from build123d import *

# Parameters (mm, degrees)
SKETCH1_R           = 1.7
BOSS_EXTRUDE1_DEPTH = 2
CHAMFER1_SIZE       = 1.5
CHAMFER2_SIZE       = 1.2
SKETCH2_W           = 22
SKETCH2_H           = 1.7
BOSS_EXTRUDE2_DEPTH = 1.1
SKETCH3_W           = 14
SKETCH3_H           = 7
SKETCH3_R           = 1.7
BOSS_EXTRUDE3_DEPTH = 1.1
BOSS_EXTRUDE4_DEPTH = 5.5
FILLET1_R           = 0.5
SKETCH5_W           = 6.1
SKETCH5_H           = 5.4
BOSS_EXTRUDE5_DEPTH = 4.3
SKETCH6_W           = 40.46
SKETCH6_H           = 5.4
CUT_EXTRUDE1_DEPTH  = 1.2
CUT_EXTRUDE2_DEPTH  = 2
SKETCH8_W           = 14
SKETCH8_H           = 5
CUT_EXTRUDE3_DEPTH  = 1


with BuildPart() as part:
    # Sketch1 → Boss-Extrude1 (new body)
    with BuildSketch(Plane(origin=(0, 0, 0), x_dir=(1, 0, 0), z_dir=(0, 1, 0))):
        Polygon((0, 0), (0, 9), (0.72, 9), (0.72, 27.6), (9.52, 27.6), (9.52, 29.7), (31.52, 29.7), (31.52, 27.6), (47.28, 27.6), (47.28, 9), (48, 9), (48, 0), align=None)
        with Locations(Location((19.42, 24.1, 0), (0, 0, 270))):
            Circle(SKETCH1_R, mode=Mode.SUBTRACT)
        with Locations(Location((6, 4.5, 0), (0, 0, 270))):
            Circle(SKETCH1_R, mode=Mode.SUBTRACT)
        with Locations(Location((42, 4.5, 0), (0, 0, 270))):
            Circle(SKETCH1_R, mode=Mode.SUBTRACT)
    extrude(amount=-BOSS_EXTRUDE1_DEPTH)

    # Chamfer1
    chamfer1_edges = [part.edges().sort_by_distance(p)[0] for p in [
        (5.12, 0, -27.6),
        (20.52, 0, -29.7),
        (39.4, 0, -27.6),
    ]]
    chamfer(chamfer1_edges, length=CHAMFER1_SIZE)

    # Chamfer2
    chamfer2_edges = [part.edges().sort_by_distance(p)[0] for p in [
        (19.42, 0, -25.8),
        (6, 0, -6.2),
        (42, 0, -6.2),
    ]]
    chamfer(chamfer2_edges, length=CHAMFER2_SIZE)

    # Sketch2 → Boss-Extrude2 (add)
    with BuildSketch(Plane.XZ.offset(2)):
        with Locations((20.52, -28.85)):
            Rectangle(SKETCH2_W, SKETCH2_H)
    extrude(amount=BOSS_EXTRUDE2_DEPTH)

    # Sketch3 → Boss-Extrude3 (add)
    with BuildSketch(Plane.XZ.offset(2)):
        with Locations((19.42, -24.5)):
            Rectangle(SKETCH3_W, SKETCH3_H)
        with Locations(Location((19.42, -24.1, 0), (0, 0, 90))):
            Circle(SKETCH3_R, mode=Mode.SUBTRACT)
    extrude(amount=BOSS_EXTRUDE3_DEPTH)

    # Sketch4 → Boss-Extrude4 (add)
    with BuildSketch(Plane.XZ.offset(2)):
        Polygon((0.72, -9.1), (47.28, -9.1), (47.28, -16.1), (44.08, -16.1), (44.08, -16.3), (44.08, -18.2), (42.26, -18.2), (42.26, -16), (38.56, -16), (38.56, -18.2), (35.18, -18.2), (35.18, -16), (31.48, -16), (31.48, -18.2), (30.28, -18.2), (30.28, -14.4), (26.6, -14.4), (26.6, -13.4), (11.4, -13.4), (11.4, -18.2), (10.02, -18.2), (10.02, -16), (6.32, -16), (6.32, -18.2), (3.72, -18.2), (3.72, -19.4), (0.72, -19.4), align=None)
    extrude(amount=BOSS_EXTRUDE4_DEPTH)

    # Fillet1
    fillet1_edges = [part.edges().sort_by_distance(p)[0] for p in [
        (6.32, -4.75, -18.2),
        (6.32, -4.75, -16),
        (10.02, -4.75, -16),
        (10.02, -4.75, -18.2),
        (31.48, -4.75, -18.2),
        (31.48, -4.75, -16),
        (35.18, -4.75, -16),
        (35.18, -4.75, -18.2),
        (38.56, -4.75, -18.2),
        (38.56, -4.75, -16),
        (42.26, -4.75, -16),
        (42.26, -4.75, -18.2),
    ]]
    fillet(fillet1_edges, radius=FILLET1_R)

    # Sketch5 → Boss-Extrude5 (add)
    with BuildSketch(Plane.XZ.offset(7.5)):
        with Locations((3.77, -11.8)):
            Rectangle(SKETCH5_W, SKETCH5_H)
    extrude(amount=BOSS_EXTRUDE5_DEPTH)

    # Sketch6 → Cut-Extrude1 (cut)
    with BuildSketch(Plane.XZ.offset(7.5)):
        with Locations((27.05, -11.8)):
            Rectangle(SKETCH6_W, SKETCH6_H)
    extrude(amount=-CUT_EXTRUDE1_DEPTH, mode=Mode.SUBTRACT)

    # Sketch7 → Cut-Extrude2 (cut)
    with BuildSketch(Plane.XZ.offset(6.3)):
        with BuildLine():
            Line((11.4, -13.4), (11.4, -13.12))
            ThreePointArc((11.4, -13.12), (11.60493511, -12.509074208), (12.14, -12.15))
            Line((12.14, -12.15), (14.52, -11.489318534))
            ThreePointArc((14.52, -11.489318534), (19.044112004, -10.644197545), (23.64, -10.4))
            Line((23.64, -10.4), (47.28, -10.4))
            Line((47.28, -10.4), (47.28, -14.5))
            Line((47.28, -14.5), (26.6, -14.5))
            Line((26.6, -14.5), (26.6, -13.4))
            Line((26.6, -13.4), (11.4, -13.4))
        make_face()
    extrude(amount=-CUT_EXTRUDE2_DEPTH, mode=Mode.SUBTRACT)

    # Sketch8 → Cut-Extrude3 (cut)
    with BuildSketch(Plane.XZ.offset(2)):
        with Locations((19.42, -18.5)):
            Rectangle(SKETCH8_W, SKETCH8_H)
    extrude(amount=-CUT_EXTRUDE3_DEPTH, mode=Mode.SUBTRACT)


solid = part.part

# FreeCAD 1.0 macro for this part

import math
import FreeCAD as App
import Part
import Sketcher
from FreeCAD import Vector


def edges_at(feature, points):
    """Names of the edges that pass closest to the given points."""
    edges = feature.Shape.Edges
    near = lambda p: min(range(len(edges)), key=lambda i: edges[i].distToShape(Part.Vertex(*p))[0])
    return sorted({f"Edge{near(p) + 1}" for p in points})


def add_polygon(sketch, points):
    """Adds a closed chain of lines whose ends are joined by coincident constraints."""
    first, n = sketch.GeometryCount, len(points)
    for a, b in zip(points, points[1:] + points[:1]):
        sketch.addGeometry(Part.LineSegment(App.Vector(*a, 0), App.Vector(*b, 0)), False)
    for i in range(n):
        sketch.addConstraint(Sketcher.Constraint("Coincident", first + i, 2, first + (i + 1) % n, 1))

doc = App.newDocument("Part")
params = doc.addObject("Spreadsheet::Sheet", "Params")
for row, (alias, value) in enumerate([
    ("sketch1_diameter", "3.4 mm"),
    ("sketch1_width", "48 mm"),
    ("sketch1_width2", "22 mm"),
    ("sketch1_height", "9 mm"),
    ("sketch1_width3", "8.8 mm"),
    ("pad1_length", "2 mm"),
    ("chamfer_size", "1.5 mm"),
    ("chamfer2_size", "1.2 mm"),
    ("sketch2_width", "22 mm"),
    ("sketch2_height", "1.7 mm"),
    ("pad2_length", "1.1 mm"),
    ("sketch3_diameter", "3.4 mm"),
    ("sketch3_width", "14 mm"),
    ("sketch3_height", "7 mm"),
    ("pad3_length", "1.1 mm"),
    ("sketch4_width", "3 mm"),
    ("sketch4_height", "1 mm"),
    ("sketch4_height2", "7 mm"),
    ("sketch4_width2", "2.6 mm"),
    ("sketch4_width3", "3.7 mm"),
    ("pad4_length", "5.5 mm"),
    ("fillet_radius", "0.5 mm"),
    ("sketch5_width", "6.1 mm"),
    ("sketch5_height", "5.4 mm"),
    ("pad5_length", "4.3 mm"),
    ("sketch6_height", "5.4 mm"),
    ("sketch6_width", "40.46 mm"),
    ("pocket1_length", "1.2 mm"),
    ("sketch7_radius", "35 mm"),
    ("sketch7_radius2", "1 mm"),
    ("sketch7_width", "15.2 mm"),
    ("sketch7_height", "1.1 mm"),
    ("sketch7_height2", "4.1 mm"),
    ("pocket2_length", "2 mm"),
    ("sketch8_width", "14 mm"),
    ("sketch8_height", "5 mm"),
    ("pocket3_length", "1 mm"),
], start=1):
    params.set(f"A{row}", alias)
    params.set(f"B{row}", "=" + value)
    params.setAlias(f"B{row}", alias)

body = doc.addObject("PartDesign::Body", "Body")

sketch1 = body.newObject("Sketcher::SketchObject", "Sketch")
sketch1.AttachmentSupport = (doc.getObject("XZ_Plane"), [""])
sketch1.MapMode = "FlatFace"
add_polygon(sketch1, [(0, -9), (0, 0), (48, 0), (48, -9), (47.3, -9), (47.3, -27.6), (31.5, -27.6), (31.5, -29.7), (9.5, -29.7), (9.5, -27.6), (0.7, -27.6), (0.7, -9)])
sketch1.addGeometry(Part.Circle(Vector(42, -4.5, 0), Vector(0, 0, 1), 1.7), False)
sketch1.addGeometry(Part.Circle(Vector(6, -4.5, 0), Vector(0, 0, 1), 1.7), False)
sketch1.addGeometry(Part.Circle(Vector(19.4, -24.1, 0), Vector(0, 0, 1), 1.7), False)
sketch1.addConstraint(Sketcher.Constraint("Vertical", 0))
sketch1.addConstraint(Sketcher.Constraint("Horizontal", 1))
sketch1.addConstraint(Sketcher.Constraint("Vertical", 2))
sketch1.addConstraint(Sketcher.Constraint("Horizontal", 3))
sketch1.addConstraint(Sketcher.Constraint("Vertical", 4))
sketch1.addConstraint(Sketcher.Constraint("Horizontal", 5))
sketch1.addConstraint(Sketcher.Constraint("Vertical", 6))
sketch1.addConstraint(Sketcher.Constraint("Horizontal", 7))
sketch1.addConstraint(Sketcher.Constraint("Vertical", 8))
sketch1.addConstraint(Sketcher.Constraint("Horizontal", 9))
sketch1.addConstraint(Sketcher.Constraint("Vertical", 10))
sketch1.addConstraint(Sketcher.Constraint("Horizontal", 11))
sketch1.addConstraint(Sketcher.Constraint("Coincident", 0, 2, -1, 1))
sketch1.addConstraint(Sketcher.Constraint("Equal", 12, 13))
sketch1.addConstraint(Sketcher.Constraint("Equal", 13, 14))
sketch1.addConstraint(Sketcher.Constraint("Horizontal", 12, 3, 13, 3))
sketch1.addConstraint(Sketcher.Constraint("Horizontal", 5, 2, 8, 2))
sketch1.addConstraint(Sketcher.Constraint("Horizontal", 3, 2, 10, 2))
sketch1.addConstraint(Sketcher.Constraint("Equal", 3, 11))
sketch1.addConstraint(Sketcher.Constraint("Diameter", 12, 3.4))
sketch1.addConstraint(Sketcher.Constraint("DistanceX", 1, 1, 1, 2, 48.0))
sketch1.addConstraint(Sketcher.Constraint("DistanceX", 7, 2, 7, 1, 22.0))
sketch1.addConstraint(Sketcher.Constraint("DistanceY", 0, 1, 0, 2, 9.0))
sketch1.addConstraint(Sketcher.Constraint("DistanceX", 9, 2, 9, 1, 8.8))
sketch1.addConstraint(Sketcher.Constraint("DistanceY", 4, 2, 4, 1, 18.6))
sketch1.addConstraint(Sketcher.Constraint("DistanceY", 6, 2, 6, 1, 2.1))
sketch1.addConstraint(Sketcher.Constraint("DistanceX", -1, 1, 12, 3, 42.0))
sketch1.addConstraint(Sketcher.Constraint("DistanceX", -1, 1, 13, 3, 6.0))
sketch1.addConstraint(Sketcher.Constraint("DistanceX", 3, 2, 3, 1, 0.72))
sketch1.addConstraint(Sketcher.Constraint("DistanceY", 12, 3, -1, 1, 4.5))
sketch1.addConstraint(Sketcher.Constraint("DistanceY", 14, 3, -1, 1, 24.1))
sketch1.addConstraint(Sketcher.Constraint("DistanceX", 14, 3, 5, 2, 12.1))
sketch1.setExpression("Constraints[31]", "Params.sketch1_diameter")
sketch1.setExpression("Constraints[32]", "Params.sketch1_width")
sketch1.setExpression("Constraints[33]", "Params.sketch1_width2")
sketch1.setExpression("Constraints[34]", "Params.sketch1_height")
sketch1.setExpression("Constraints[35]", "Params.sketch1_width3")
pad1 = body.newObject("PartDesign::Pad", "Pad")
pad1.Profile = sketch1
pad1.setExpression("Length", "Params.pad1_length")
doc.recompute()

chamfer = body.newObject("PartDesign::Chamfer", "Chamfer")
chamfer.Base = (pad1, edges_at(pad1, [(5.12, 0, -27.6), (20.52, 0, -29.7), (39.4, 0, -27.6)]))
chamfer.setExpression("Size", "Params.chamfer_size")
doc.recompute()

chamfer2 = body.newObject("PartDesign::Chamfer", "Chamfer001")
chamfer2.Base = (chamfer, edges_at(chamfer, [(19.42, 0, -25.8), (6, 0, -6.2), (42, 0, -6.2)]))
chamfer2.setExpression("Size", "Params.chamfer2_size")

sketch2 = body.newObject("Sketcher::SketchObject", "Sketch001")
sketch2.AttachmentSupport = (doc.getObject("XZ_Plane"), [""])
sketch2.MapMode = "FlatFace"
sketch2.AttachmentOffset = App.Placement(Vector(0, 0, 2), App.Rotation())
add_polygon(sketch2, [(9.5, -28), (9.5, -29.7), (31.5, -29.7), (31.5, -28)])
sketch2.addConstraint(Sketcher.Constraint("Vertical", 0))
sketch2.addConstraint(Sketcher.Constraint("Horizontal", 1))
sketch2.addConstraint(Sketcher.Constraint("Vertical", 2))
sketch2.addConstraint(Sketcher.Constraint("Horizontal", 3))
sketch2.addConstraint(Sketcher.Constraint("DistanceX", 1, 1, 1, 2, 22.0))
sketch2.addConstraint(Sketcher.Constraint("DistanceY", 0, 2, 0, 1, 1.7))
sketch2.addConstraint(Sketcher.Constraint("DistanceY", 2, 2, -1, 1, 28.0))
sketch2.addConstraint(Sketcher.Constraint("DistanceX", -1, 1, 0, 2, 9.52))
sketch2.setExpression("Constraints[8]", "Params.sketch2_width")
sketch2.setExpression("Constraints[9]", "Params.sketch2_height")
pad2 = body.newObject("PartDesign::Pad", "Pad001")
pad2.Profile = sketch2
pad2.setExpression("Length", "Params.pad2_length")

sketch3 = body.newObject("Sketcher::SketchObject", "Sketch002")
sketch3.AttachmentSupport = (doc.getObject("XZ_Plane"), [""])
sketch3.MapMode = "FlatFace"
sketch3.AttachmentOffset = App.Placement(Vector(0, 0, 2), App.Rotation())
add_polygon(sketch3, [(12.4, -21), (12.4, -28), (26.4, -28), (26.4, -21)])
sketch3.addGeometry(Part.Circle(Vector(19.4, -24.1, 0), Vector(0, 0, 1), 1.7), False)
sketch3.addConstraint(Sketcher.Constraint("Vertical", 0))
sketch3.addConstraint(Sketcher.Constraint("Horizontal", 1))
sketch3.addConstraint(Sketcher.Constraint("Vertical", 2))
sketch3.addConstraint(Sketcher.Constraint("Horizontal", 3))
sketch3.addConstraint(Sketcher.Constraint("Diameter", 4, 3.4))
sketch3.addConstraint(Sketcher.Constraint("DistanceX", 1, 1, 1, 2, 14.0))
sketch3.addConstraint(Sketcher.Constraint("DistanceY", 0, 2, 0, 1, 7.0))
sketch3.addConstraint(Sketcher.Constraint("DistanceY", 0, 2, -1, 1, 28.0))
sketch3.addConstraint(Sketcher.Constraint("DistanceX", 0, 2, 4, 3, 7.0))
sketch3.addConstraint(Sketcher.Constraint("DistanceY", 4, 3, -1, 1, 24.1))
sketch3.addConstraint(Sketcher.Constraint("DistanceX", -1, 1, 4, 3, 19.42))
sketch3.setExpression("Constraints[8]", "Params.sketch3_diameter")
sketch3.setExpression("Constraints[9]", "Params.sketch3_width")
sketch3.setExpression("Constraints[10]", "Params.sketch3_height")
pad3 = body.newObject("PartDesign::Pad", "Pad002")
pad3.Profile = sketch3
pad3.setExpression("Length", "Params.pad3_length")

sketch4 = body.newObject("Sketcher::SketchObject", "Sketch003")
sketch4.AttachmentSupport = (doc.getObject("XZ_Plane"), [""])
sketch4.MapMode = "FlatFace"
sketch4.AttachmentOffset = App.Placement(Vector(0, 0, 2), App.Rotation())
add_polygon(sketch4, [(47.3, -9.1), (0.7, -9.1), (0.7, -19.4), (3.7, -19.4), (3.7, -18.2), (6.3, -18.2), (6.3, -16), (10, -16), (10, -18.2), (11.4, -18.2), (11.4, -13.4), (26.6, -13.4), (26.6, -14.4), (30.3, -14.4), (30.3, -18.2), (31.5, -18.2), (31.5, -16), (35.2, -16), (35.2, -18.2), (38.6, -18.2), (38.6, -16), (42.3, -16), (42.3, -18.2), (44.1, -18.2), (44.1, -16.1), (47.3, -16.1)])
sketch4.addConstraint(Sketcher.Constraint("Horizontal", 0))
sketch4.addConstraint(Sketcher.Constraint("Vertical", 1))
sketch4.addConstraint(Sketcher.Constraint("Horizontal", 2))
sketch4.addConstraint(Sketcher.Constraint("Vertical", 3))
sketch4.addConstraint(Sketcher.Constraint("Horizontal", 4))
sketch4.addConstraint(Sketcher.Constraint("Vertical", 5))
sketch4.addConstraint(Sketcher.Constraint("Horizontal", 6))
sketch4.addConstraint(Sketcher.Constraint("Vertical", 7))
sketch4.addConstraint(Sketcher.Constraint("Horizontal", 8))
sketch4.addConstraint(Sketcher.Constraint("Vertical", 9))
sketch4.addConstraint(Sketcher.Constraint("Horizontal", 10))
sketch4.addConstraint(Sketcher.Constraint("Vertical", 11))
sketch4.addConstraint(Sketcher.Constraint("Horizontal", 12))
sketch4.addConstraint(Sketcher.Constraint("Vertical", 13))
sketch4.addConstraint(Sketcher.Constraint("Horizontal", 14))
sketch4.addConstraint(Sketcher.Constraint("Vertical", 15))
sketch4.addConstraint(Sketcher.Constraint("Horizontal", 16))
sketch4.addConstraint(Sketcher.Constraint("Vertical", 17))
sketch4.addConstraint(Sketcher.Constraint("Horizontal", 18))
sketch4.addConstraint(Sketcher.Constraint("Vertical", 19))
sketch4.addConstraint(Sketcher.Constraint("Horizontal", 20))
sketch4.addConstraint(Sketcher.Constraint("Vertical", 21))
sketch4.addConstraint(Sketcher.Constraint("Horizontal", 22))
sketch4.addConstraint(Sketcher.Constraint("Vertical", 23))
sketch4.addConstraint(Sketcher.Constraint("Horizontal", 24))
sketch4.addConstraint(Sketcher.Constraint("Vertical", 25))
sketch4.addConstraint(Sketcher.Constraint("Horizontal", 4, 2, 7, 2))
sketch4.addConstraint(Sketcher.Constraint("Horizontal", 8, 2, 13, 2))
sketch4.addConstraint(Sketcher.Constraint("Horizontal", 6, 2, 15, 2))
sketch4.addConstraint(Sketcher.Constraint("Horizontal", 14, 2, 17, 2))
sketch4.addConstraint(Sketcher.Constraint("Horizontal", 16, 2, 19, 2))
sketch4.addConstraint(Sketcher.Constraint("Horizontal", 18, 2, 21, 2))
sketch4.addConstraint(Sketcher.Constraint("Equal", 6, 16))
sketch4.addConstraint(Sketcher.Constraint("Equal", 16, 20))
sketch4.addConstraint(Sketcher.Constraint("Equal", 14, 3))
sketch4.addConstraint(Sketcher.Constraint("DistanceX", 2, 1, 2, 2, 3.0))
sketch4.addConstraint(Sketcher.Constraint("DistanceY", 11, 2, 11, 1, 1.0))
sketch4.addConstraint(Sketcher.Constraint("DistanceY", 25, 1, 25, 2, 7.0))
sketch4.addConstraint(Sketcher.Constraint("DistanceX", 4, 1, 4, 2, 2.6))
sketch4.addConstraint(Sketcher.Constraint("DistanceX", 6, 1, 6, 2, 3.7))
sketch4.addConstraint(Sketcher.Constraint("DistanceX", 10, 1, 10, 2, 15.2))
sketch4.addConstraint(Sketcher.Constraint("DistanceX", 14, 1, 14, 2, 1.2))
sketch4.addConstraint(Sketcher.Constraint("DistanceX", 24, 1, 24, 2, 3.2))
sketch4.addConstraint(Sketcher.Constraint("DistanceY", 1, 2, 1, 1, 10.3))
sketch4.addConstraint(Sketcher.Constraint("DistanceY", 5, 1, 5, 2, 2.2))
sketch4.addConstraint(Sketcher.Constraint("DistanceY", 9, 1, 9, 2, 4.8))
sketch4.addConstraint(Sketcher.Constraint("DistanceY", 5, 2, -1, 1, 16.0))
sketch4.addConstraint(Sketcher.Constraint("DistanceX", 0, 2, 0, 1, 46.56))
sketch4.addConstraint(Sketcher.Constraint("DistanceX", 8, 1, 8, 2, 1.38))
sketch4.addConstraint(Sketcher.Constraint("DistanceX", 12, 1, 12, 2, 3.68))
sketch4.addConstraint(Sketcher.Constraint("DistanceX", 18, 1, 18, 2, 3.38))
sketch4.addConstraint(Sketcher.Constraint("DistanceX", -1, 1, 8, 2, 11.4))
sketch4.setExpression("Constraints[61]", "Params.sketch4_width")
sketch4.setExpression("Constraints[62]", "Params.sketch4_height")
sketch4.setExpression("Constraints[63]", "Params.sketch4_height2")
sketch4.setExpression("Constraints[64]", "Params.sketch4_width2")
sketch4.setExpression("Constraints[65]", "Params.sketch4_width3")
pad4 = body.newObject("PartDesign::Pad", "Pad003")
pad4.Profile = sketch4
pad4.setExpression("Length", "Params.pad4_length")
doc.recompute()

fillet = body.newObject("PartDesign::Fillet", "Fillet")
fillet.Base = (pad4, edges_at(pad4, [
    (6.32, -4.75, -18.2),
    (6.32, -4.75, -16),
    (10.02, -4.75, -16),
    (10.02, -4.75, -18.2),
    (31.48, -4.75, -18.2),
    (31.48, -4.75, -16),
    (35.18, -4.75, -16),
    (35.18, -4.75, -18.2),
    (38.56, -4.75, -18.2),
    (38.56, -4.75, -16),
    (42.26, -4.75, -16),
    (42.26, -4.75, -18.2),
]))
fillet.setExpression("Radius", "Params.fillet_radius")

sketch5 = body.newObject("Sketcher::SketchObject", "Sketch004")
sketch5.AttachmentSupport = (doc.getObject("XZ_Plane"), [""])
sketch5.MapMode = "FlatFace"
sketch5.AttachmentOffset = App.Placement(Vector(0, 0, 7.5), App.Rotation())
add_polygon(sketch5, [(1, -9), (1, -14), (7, -14), (7, -9)])
sketch5.addConstraint(Sketcher.Constraint("Vertical", 0))
sketch5.addConstraint(Sketcher.Constraint("Horizontal", 1))
sketch5.addConstraint(Sketcher.Constraint("Vertical", 2))
sketch5.addConstraint(Sketcher.Constraint("Horizontal", 3))
sketch5.addConstraint(Sketcher.Constraint("DistanceX", 1, 1, 1, 2, 6.1))
sketch5.addConstraint(Sketcher.Constraint("DistanceY", 0, 2, 0, 1, 5.4))
sketch5.addConstraint(Sketcher.Constraint("DistanceY", 0, 2, -1, 1, 14.5))
sketch5.addConstraint(Sketcher.Constraint("DistanceX", -1, 1, 0, 2, 0.72))
sketch5.setExpression("Constraints[8]", "Params.sketch5_width")
sketch5.setExpression("Constraints[9]", "Params.sketch5_height")
pad5 = body.newObject("PartDesign::Pad", "Pad004")
pad5.Profile = sketch5
pad5.setExpression("Length", "Params.pad5_length")

sketch6 = body.newObject("Sketcher::SketchObject", "Sketch005")
sketch6.AttachmentSupport = (doc.getObject("XZ_Plane"), [""])
sketch6.MapMode = "FlatFace"
sketch6.AttachmentOffset = App.Placement(Vector(0, 0, 7.5), App.Rotation())
add_polygon(sketch6, [(7, -9), (7, -14), (47, -14), (47, -9)])
sketch6.addConstraint(Sketcher.Constraint("Vertical", 0))
sketch6.addConstraint(Sketcher.Constraint("Horizontal", 1))
sketch6.addConstraint(Sketcher.Constraint("Vertical", 2))
sketch6.addConstraint(Sketcher.Constraint("Horizontal", 3))
sketch6.addConstraint(Sketcher.Constraint("DistanceY", 0, 2, 0, 1, 5.4))
sketch6.addConstraint(Sketcher.Constraint("DistanceX", 1, 1, 1, 2, 40.46))
sketch6.addConstraint(Sketcher.Constraint("DistanceY", 0, 2, -1, 1, 14.5))
sketch6.addConstraint(Sketcher.Constraint("DistanceX", -1, 1, 0, 2, 6.82))
sketch6.setExpression("Constraints[8]", "Params.sketch6_height")
sketch6.setExpression("Constraints[9]", "Params.sketch6_width")
pocket1 = body.newObject("PartDesign::Pocket", "Pocket")
pocket1.Profile = sketch6
pocket1.setExpression("Length", "Params.pocket1_length")

sketch7 = body.newObject("Sketcher::SketchObject", "Sketch006")
sketch7.AttachmentSupport = (doc.getObject("XZ_Plane"), [""])
sketch7.MapMode = "FlatFace"
sketch7.AttachmentOffset = App.Placement(Vector(0, 0, 6.3), App.Rotation())
sketch7.addGeometry(Part.LineSegment(Vector(11.4, -13.12, 0), Vector(11.4, -13.4, 0)), False)
sketch7.addGeometry(Part.LineSegment(Vector(11.4, -13.4, 0), Vector(26.6, -13.4, 0)), False)
sketch7.addGeometry(Part.LineSegment(Vector(26.6, -13.4, 0), Vector(26.6, -14.5, 0)), False)
sketch7.addGeometry(Part.LineSegment(Vector(26.6, -14.5, 0), Vector(47.28, -14.5, 0)), False)
sketch7.addGeometry(Part.LineSegment(Vector(47.28, -14.5, 0), Vector(47.28, -10.4, 0)), False)
sketch7.addGeometry(Part.LineSegment(Vector(47.28, -10.4, 0), Vector(23.64, -10.4, 0)), False)
sketch7.addGeometry(Part.ArcOfCircle(Part.Circle(Vector(23.2, -45.4, 0), Vector(0, 0, 1), 35), math.radians(89.27), math.radians(104.35)), False)
sketch7.addGeometry(Part.LineSegment(Vector(14.52, -11.49, 0), Vector(12.14, -12.15, 0)), False)
sketch7.addGeometry(Part.ArcOfCircle(Part.Circle(Vector(12.4, -13.12, 0), Vector(0, 0, 1), 1), math.radians(105), math.radians(180)), False)
sketch7.addConstraint(Sketcher.Constraint("Coincident", 0, 2, 1, 1))
sketch7.addConstraint(Sketcher.Constraint("Coincident", 1, 2, 2, 1))
sketch7.addConstraint(Sketcher.Constraint("Coincident", 2, 2, 3, 1))
sketch7.addConstraint(Sketcher.Constraint("Coincident", 3, 2, 4, 1))
sketch7.addConstraint(Sketcher.Constraint("Coincident", 4, 2, 5, 1))
sketch7.addConstraint(Sketcher.Constraint("Coincident", 5, 2, 6, 1))
sketch7.addConstraint(Sketcher.Constraint("Coincident", 6, 2, 7, 1))
sketch7.addConstraint(Sketcher.Constraint("Coincident", 7, 2, 8, 1))
sketch7.addConstraint(Sketcher.Constraint("Coincident", 8, 2, 0, 1))
sketch7.addConstraint(Sketcher.Constraint("Vertical", 0))
sketch7.addConstraint(Sketcher.Constraint("Horizontal", 1))
sketch7.addConstraint(Sketcher.Constraint("Vertical", 2))
sketch7.addConstraint(Sketcher.Constraint("Horizontal", 3))
sketch7.addConstraint(Sketcher.Constraint("Vertical", 4))
sketch7.addConstraint(Sketcher.Constraint("Horizontal", 5))
sketch7.addConstraint(Sketcher.Constraint("Radius", 6, 35.0))
sketch7.addConstraint(Sketcher.Constraint("Radius", 8, 1.0))
sketch7.addConstraint(Sketcher.Constraint("DistanceX", 1, 1, 1, 2, 15.2))
sketch7.addConstraint(Sketcher.Constraint("DistanceY", 2, 2, 2, 1, 1.1))
sketch7.addConstraint(Sketcher.Constraint("DistanceY", 4, 1, 4, 2, 4.1))
sketch7.addConstraint(Sketcher.Constraint("DistanceX", 3, 1, 3, 2, 20.68))
sketch7.addConstraint(Sketcher.Constraint("DistanceX", 5, 2, 5, 1, 23.64))
sketch7.addConstraint(Sketcher.Constraint("DistanceY", 0, 2, 0, 1, 0.28))
sketch7.addConstraint(Sketcher.Constraint("DistanceX", -1, 1, 0, 2, 11.4))
sketch7.addConstraint(Sketcher.Constraint("DistanceY", 0, 2, -1, 1, 13.4))
sketch7.addConstraint(Sketcher.Constraint("DistanceX", 7, 2, 5, 2, 11.5))
sketch7.addConstraint(Sketcher.Constraint("Distance", 7, 2.47))
sketch7.addConstraint(Sketcher.Constraint("DistanceX", -1, 1, 6, 2, 14.52))
sketch7.addConstraint(Sketcher.Constraint("DistanceY", 7, 2, -1, 1, 12.15))
sketch7.setExpression("Constraints[15]", "Params.sketch7_radius")
sketch7.setExpression("Constraints[16]", "Params.sketch7_radius2")
sketch7.setExpression("Constraints[17]", "Params.sketch7_width")
sketch7.setExpression("Constraints[18]", "Params.sketch7_height")
sketch7.setExpression("Constraints[19]", "Params.sketch7_height2")
pocket2 = body.newObject("PartDesign::Pocket", "Pocket001")
pocket2.Profile = sketch7
pocket2.setExpression("Length", "Params.pocket2_length")

sketch8 = body.newObject("Sketcher::SketchObject", "Sketch007")
sketch8.AttachmentSupport = (doc.getObject("XZ_Plane"), [""])
sketch8.MapMode = "FlatFace"
sketch8.AttachmentOffset = App.Placement(Vector(0, 0, 2), App.Rotation())
add_polygon(sketch8, [(12, -16), (12, -21), (26, -21), (26, -16)])
sketch8.addConstraint(Sketcher.Constraint("Vertical", 0))
sketch8.addConstraint(Sketcher.Constraint("Horizontal", 1))
sketch8.addConstraint(Sketcher.Constraint("Vertical", 2))
sketch8.addConstraint(Sketcher.Constraint("Horizontal", 3))
sketch8.addConstraint(Sketcher.Constraint("DistanceX", 1, 1, 1, 2, 14.0))
sketch8.addConstraint(Sketcher.Constraint("DistanceY", 0, 2, 0, 1, 5.0))
sketch8.addConstraint(Sketcher.Constraint("DistanceY", 0, 2, -1, 1, 21.0))
sketch8.addConstraint(Sketcher.Constraint("DistanceX", -1, 1, 0, 2, 12.42))
sketch8.setExpression("Constraints[8]", "Params.sketch8_width")
sketch8.setExpression("Constraints[9]", "Params.sketch8_height")
pocket3 = body.newObject("PartDesign::Pocket", "Pocket002")
pocket3.Profile = sketch8
pocket3.setExpression("Length", "Params.pocket3_length")

doc.recompute()
